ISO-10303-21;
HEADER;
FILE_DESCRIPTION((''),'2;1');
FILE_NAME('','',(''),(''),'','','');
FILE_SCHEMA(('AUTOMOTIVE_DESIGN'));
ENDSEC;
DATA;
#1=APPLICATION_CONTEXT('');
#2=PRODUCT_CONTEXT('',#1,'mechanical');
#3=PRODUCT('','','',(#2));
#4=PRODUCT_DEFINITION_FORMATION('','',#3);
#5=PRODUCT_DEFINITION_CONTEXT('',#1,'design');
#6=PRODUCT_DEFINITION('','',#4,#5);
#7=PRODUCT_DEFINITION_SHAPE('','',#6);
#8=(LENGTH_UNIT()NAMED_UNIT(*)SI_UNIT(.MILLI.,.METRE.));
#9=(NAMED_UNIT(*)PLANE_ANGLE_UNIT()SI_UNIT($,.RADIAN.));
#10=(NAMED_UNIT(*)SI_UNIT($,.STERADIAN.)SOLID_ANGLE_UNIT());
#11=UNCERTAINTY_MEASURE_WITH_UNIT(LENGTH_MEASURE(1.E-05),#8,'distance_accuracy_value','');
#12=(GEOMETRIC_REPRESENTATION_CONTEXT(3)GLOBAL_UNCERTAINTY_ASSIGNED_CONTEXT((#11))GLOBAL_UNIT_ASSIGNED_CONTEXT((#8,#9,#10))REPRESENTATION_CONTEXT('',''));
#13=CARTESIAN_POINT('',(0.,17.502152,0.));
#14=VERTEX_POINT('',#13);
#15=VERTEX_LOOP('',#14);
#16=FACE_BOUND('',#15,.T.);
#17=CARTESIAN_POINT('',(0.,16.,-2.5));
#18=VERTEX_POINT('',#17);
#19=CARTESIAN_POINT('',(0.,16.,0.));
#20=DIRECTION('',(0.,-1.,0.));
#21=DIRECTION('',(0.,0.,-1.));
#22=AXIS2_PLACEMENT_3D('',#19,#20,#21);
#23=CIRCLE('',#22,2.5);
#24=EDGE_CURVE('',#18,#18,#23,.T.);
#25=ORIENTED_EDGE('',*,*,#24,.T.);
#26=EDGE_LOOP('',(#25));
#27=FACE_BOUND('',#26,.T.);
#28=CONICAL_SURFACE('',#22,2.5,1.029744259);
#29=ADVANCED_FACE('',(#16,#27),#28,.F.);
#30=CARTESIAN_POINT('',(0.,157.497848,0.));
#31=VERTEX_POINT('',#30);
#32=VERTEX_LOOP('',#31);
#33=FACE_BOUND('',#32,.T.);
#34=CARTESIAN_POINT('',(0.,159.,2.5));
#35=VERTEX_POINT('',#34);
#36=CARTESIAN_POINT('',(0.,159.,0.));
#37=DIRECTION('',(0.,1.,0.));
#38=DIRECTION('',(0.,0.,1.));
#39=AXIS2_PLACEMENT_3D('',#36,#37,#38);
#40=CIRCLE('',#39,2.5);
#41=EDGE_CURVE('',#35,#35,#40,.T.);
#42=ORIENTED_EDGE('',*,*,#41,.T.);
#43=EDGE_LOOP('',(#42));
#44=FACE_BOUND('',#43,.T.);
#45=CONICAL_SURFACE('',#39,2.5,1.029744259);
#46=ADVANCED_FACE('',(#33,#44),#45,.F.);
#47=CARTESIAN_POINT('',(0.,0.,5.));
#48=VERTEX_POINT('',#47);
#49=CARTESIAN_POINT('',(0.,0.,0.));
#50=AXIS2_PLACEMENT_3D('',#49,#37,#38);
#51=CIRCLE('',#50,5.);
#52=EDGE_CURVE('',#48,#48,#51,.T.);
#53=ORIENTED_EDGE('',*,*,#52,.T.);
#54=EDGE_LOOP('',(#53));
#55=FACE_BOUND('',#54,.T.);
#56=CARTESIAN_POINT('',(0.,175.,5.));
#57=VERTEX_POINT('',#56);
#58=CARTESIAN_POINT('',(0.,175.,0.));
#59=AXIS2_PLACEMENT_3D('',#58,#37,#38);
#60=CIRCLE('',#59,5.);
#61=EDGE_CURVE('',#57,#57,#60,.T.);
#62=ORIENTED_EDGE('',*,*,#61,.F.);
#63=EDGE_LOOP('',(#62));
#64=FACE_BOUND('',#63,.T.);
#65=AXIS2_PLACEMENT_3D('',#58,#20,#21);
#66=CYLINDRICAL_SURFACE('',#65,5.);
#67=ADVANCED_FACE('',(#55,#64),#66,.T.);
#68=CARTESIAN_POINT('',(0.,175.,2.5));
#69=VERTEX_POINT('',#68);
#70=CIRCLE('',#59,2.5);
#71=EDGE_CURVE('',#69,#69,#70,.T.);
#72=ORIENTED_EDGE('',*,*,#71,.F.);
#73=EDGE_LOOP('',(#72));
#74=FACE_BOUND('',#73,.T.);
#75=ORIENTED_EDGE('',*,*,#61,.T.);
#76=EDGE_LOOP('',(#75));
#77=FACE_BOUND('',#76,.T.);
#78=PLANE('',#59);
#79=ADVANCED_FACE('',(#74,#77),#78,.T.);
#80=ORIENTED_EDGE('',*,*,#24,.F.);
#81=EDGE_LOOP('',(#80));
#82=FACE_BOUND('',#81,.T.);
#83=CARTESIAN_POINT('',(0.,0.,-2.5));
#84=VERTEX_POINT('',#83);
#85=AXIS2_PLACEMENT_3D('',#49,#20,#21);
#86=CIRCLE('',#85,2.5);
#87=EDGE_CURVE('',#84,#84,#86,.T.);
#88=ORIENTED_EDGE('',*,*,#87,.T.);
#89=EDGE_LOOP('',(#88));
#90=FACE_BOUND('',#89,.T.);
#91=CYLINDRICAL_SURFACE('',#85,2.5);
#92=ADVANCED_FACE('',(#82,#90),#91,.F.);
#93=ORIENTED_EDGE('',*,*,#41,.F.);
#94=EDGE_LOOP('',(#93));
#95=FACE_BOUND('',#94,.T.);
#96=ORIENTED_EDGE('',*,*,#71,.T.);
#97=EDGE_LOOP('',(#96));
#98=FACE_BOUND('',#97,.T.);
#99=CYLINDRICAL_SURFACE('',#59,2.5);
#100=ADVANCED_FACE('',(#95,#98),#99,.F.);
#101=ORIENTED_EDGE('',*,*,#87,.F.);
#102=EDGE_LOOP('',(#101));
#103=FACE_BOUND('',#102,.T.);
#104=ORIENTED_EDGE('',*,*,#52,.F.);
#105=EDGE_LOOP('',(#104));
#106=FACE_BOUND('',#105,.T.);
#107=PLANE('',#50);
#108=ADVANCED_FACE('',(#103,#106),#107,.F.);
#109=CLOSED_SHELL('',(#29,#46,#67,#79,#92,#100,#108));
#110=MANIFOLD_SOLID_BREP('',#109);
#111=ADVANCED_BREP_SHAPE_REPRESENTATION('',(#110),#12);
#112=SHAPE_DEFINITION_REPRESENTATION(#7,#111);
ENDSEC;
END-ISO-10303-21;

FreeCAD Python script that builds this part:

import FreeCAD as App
import Part
import Sketcher
Q = App.Units.Quantity

doc = App.newDocument("Part")
body = doc.addObject("PartDesign::Body", "Body")

sketch1 = body.newObject("Sketcher::SketchObject", "Sketch")
sketch1.AttachmentSupport = (doc.getObject("XZ_Plane"), [""])
sketch1.MapMode = "FlatFace"
sketch1.addGeometry(Part.Circle(App.Vector(0, 0, 0), App.Vector(0, 0, 1), 5), False)
sketch1.addConstraint(Sketcher.Constraint("Coincident", 0, 3, -1, 1))
sketch1.addConstraint(Sketcher.Constraint("Diameter", 0, Q("10 mm")))
pad1 = body.newObject("PartDesign::Pad", "Pad")
pad1.Profile = sketch1
pad1.Length = 175
pad1.Reversed = True

sketch2 = body.newObject("Sketcher::SketchObject", "Sketch001")
sketch2.AttachmentSupport = (doc.getObject("XZ_Plane"), [""])
sketch2.MapMode = "FlatFace"
sketch2.AttachmentOffset = App.Placement(App.Vector(0, 0, -175), App.Rotation())
sketch2.addGeometry(Part.Circle(App.Vector(0, 0, 0), App.Vector(0, 0, 1), 2.5), False)
sketch2.addConstraint(Sketcher.Constraint("Coincident", 0, 3, -1, 1))
sketch2.addConstraint(Sketcher.Constraint("Diameter", 0, Q("5 mm")))
doc.recompute()
hole = body.newObject("PartDesign::Hole", "Hole")
hole.Profile = sketch2
hole.ThreadType = "None"
hole.Diameter = 5
hole.DepthType = "Dimension"
hole.Depth = 16
hole.DrillPoint = "Angled"
hole.DrillPointAngle = 118
hole.Reversed = True

sketch3 = body.newObject("Sketcher::SketchObject", "Sketch002")
sketch3.AttachmentSupport = (doc.getObject("XZ_Plane"), [""])
sketch3.MapMode = "FlatFace"
sketch3.addGeometry(Part.Circle(App.Vector(0, 0, 0), App.Vector(0, 0, 1), 2.5), False)
sketch3.addConstraint(Sketcher.Constraint("Coincident", 0, 3, -1, 1))
sketch3.addConstraint(Sketcher.Constraint("Diameter", 0, Q("5 mm")))
doc.recompute()
hole2 = body.newObject("PartDesign::Hole", "Hole001")
hole2.Profile = sketch3
hole2.ThreadType = "None"
hole2.Diameter = 5
hole2.DepthType = "Dimension"
hole2.Depth = 16
hole2.DrillPoint = "Angled"
hole2.DrillPointAngle = 118

doc.recompute()
